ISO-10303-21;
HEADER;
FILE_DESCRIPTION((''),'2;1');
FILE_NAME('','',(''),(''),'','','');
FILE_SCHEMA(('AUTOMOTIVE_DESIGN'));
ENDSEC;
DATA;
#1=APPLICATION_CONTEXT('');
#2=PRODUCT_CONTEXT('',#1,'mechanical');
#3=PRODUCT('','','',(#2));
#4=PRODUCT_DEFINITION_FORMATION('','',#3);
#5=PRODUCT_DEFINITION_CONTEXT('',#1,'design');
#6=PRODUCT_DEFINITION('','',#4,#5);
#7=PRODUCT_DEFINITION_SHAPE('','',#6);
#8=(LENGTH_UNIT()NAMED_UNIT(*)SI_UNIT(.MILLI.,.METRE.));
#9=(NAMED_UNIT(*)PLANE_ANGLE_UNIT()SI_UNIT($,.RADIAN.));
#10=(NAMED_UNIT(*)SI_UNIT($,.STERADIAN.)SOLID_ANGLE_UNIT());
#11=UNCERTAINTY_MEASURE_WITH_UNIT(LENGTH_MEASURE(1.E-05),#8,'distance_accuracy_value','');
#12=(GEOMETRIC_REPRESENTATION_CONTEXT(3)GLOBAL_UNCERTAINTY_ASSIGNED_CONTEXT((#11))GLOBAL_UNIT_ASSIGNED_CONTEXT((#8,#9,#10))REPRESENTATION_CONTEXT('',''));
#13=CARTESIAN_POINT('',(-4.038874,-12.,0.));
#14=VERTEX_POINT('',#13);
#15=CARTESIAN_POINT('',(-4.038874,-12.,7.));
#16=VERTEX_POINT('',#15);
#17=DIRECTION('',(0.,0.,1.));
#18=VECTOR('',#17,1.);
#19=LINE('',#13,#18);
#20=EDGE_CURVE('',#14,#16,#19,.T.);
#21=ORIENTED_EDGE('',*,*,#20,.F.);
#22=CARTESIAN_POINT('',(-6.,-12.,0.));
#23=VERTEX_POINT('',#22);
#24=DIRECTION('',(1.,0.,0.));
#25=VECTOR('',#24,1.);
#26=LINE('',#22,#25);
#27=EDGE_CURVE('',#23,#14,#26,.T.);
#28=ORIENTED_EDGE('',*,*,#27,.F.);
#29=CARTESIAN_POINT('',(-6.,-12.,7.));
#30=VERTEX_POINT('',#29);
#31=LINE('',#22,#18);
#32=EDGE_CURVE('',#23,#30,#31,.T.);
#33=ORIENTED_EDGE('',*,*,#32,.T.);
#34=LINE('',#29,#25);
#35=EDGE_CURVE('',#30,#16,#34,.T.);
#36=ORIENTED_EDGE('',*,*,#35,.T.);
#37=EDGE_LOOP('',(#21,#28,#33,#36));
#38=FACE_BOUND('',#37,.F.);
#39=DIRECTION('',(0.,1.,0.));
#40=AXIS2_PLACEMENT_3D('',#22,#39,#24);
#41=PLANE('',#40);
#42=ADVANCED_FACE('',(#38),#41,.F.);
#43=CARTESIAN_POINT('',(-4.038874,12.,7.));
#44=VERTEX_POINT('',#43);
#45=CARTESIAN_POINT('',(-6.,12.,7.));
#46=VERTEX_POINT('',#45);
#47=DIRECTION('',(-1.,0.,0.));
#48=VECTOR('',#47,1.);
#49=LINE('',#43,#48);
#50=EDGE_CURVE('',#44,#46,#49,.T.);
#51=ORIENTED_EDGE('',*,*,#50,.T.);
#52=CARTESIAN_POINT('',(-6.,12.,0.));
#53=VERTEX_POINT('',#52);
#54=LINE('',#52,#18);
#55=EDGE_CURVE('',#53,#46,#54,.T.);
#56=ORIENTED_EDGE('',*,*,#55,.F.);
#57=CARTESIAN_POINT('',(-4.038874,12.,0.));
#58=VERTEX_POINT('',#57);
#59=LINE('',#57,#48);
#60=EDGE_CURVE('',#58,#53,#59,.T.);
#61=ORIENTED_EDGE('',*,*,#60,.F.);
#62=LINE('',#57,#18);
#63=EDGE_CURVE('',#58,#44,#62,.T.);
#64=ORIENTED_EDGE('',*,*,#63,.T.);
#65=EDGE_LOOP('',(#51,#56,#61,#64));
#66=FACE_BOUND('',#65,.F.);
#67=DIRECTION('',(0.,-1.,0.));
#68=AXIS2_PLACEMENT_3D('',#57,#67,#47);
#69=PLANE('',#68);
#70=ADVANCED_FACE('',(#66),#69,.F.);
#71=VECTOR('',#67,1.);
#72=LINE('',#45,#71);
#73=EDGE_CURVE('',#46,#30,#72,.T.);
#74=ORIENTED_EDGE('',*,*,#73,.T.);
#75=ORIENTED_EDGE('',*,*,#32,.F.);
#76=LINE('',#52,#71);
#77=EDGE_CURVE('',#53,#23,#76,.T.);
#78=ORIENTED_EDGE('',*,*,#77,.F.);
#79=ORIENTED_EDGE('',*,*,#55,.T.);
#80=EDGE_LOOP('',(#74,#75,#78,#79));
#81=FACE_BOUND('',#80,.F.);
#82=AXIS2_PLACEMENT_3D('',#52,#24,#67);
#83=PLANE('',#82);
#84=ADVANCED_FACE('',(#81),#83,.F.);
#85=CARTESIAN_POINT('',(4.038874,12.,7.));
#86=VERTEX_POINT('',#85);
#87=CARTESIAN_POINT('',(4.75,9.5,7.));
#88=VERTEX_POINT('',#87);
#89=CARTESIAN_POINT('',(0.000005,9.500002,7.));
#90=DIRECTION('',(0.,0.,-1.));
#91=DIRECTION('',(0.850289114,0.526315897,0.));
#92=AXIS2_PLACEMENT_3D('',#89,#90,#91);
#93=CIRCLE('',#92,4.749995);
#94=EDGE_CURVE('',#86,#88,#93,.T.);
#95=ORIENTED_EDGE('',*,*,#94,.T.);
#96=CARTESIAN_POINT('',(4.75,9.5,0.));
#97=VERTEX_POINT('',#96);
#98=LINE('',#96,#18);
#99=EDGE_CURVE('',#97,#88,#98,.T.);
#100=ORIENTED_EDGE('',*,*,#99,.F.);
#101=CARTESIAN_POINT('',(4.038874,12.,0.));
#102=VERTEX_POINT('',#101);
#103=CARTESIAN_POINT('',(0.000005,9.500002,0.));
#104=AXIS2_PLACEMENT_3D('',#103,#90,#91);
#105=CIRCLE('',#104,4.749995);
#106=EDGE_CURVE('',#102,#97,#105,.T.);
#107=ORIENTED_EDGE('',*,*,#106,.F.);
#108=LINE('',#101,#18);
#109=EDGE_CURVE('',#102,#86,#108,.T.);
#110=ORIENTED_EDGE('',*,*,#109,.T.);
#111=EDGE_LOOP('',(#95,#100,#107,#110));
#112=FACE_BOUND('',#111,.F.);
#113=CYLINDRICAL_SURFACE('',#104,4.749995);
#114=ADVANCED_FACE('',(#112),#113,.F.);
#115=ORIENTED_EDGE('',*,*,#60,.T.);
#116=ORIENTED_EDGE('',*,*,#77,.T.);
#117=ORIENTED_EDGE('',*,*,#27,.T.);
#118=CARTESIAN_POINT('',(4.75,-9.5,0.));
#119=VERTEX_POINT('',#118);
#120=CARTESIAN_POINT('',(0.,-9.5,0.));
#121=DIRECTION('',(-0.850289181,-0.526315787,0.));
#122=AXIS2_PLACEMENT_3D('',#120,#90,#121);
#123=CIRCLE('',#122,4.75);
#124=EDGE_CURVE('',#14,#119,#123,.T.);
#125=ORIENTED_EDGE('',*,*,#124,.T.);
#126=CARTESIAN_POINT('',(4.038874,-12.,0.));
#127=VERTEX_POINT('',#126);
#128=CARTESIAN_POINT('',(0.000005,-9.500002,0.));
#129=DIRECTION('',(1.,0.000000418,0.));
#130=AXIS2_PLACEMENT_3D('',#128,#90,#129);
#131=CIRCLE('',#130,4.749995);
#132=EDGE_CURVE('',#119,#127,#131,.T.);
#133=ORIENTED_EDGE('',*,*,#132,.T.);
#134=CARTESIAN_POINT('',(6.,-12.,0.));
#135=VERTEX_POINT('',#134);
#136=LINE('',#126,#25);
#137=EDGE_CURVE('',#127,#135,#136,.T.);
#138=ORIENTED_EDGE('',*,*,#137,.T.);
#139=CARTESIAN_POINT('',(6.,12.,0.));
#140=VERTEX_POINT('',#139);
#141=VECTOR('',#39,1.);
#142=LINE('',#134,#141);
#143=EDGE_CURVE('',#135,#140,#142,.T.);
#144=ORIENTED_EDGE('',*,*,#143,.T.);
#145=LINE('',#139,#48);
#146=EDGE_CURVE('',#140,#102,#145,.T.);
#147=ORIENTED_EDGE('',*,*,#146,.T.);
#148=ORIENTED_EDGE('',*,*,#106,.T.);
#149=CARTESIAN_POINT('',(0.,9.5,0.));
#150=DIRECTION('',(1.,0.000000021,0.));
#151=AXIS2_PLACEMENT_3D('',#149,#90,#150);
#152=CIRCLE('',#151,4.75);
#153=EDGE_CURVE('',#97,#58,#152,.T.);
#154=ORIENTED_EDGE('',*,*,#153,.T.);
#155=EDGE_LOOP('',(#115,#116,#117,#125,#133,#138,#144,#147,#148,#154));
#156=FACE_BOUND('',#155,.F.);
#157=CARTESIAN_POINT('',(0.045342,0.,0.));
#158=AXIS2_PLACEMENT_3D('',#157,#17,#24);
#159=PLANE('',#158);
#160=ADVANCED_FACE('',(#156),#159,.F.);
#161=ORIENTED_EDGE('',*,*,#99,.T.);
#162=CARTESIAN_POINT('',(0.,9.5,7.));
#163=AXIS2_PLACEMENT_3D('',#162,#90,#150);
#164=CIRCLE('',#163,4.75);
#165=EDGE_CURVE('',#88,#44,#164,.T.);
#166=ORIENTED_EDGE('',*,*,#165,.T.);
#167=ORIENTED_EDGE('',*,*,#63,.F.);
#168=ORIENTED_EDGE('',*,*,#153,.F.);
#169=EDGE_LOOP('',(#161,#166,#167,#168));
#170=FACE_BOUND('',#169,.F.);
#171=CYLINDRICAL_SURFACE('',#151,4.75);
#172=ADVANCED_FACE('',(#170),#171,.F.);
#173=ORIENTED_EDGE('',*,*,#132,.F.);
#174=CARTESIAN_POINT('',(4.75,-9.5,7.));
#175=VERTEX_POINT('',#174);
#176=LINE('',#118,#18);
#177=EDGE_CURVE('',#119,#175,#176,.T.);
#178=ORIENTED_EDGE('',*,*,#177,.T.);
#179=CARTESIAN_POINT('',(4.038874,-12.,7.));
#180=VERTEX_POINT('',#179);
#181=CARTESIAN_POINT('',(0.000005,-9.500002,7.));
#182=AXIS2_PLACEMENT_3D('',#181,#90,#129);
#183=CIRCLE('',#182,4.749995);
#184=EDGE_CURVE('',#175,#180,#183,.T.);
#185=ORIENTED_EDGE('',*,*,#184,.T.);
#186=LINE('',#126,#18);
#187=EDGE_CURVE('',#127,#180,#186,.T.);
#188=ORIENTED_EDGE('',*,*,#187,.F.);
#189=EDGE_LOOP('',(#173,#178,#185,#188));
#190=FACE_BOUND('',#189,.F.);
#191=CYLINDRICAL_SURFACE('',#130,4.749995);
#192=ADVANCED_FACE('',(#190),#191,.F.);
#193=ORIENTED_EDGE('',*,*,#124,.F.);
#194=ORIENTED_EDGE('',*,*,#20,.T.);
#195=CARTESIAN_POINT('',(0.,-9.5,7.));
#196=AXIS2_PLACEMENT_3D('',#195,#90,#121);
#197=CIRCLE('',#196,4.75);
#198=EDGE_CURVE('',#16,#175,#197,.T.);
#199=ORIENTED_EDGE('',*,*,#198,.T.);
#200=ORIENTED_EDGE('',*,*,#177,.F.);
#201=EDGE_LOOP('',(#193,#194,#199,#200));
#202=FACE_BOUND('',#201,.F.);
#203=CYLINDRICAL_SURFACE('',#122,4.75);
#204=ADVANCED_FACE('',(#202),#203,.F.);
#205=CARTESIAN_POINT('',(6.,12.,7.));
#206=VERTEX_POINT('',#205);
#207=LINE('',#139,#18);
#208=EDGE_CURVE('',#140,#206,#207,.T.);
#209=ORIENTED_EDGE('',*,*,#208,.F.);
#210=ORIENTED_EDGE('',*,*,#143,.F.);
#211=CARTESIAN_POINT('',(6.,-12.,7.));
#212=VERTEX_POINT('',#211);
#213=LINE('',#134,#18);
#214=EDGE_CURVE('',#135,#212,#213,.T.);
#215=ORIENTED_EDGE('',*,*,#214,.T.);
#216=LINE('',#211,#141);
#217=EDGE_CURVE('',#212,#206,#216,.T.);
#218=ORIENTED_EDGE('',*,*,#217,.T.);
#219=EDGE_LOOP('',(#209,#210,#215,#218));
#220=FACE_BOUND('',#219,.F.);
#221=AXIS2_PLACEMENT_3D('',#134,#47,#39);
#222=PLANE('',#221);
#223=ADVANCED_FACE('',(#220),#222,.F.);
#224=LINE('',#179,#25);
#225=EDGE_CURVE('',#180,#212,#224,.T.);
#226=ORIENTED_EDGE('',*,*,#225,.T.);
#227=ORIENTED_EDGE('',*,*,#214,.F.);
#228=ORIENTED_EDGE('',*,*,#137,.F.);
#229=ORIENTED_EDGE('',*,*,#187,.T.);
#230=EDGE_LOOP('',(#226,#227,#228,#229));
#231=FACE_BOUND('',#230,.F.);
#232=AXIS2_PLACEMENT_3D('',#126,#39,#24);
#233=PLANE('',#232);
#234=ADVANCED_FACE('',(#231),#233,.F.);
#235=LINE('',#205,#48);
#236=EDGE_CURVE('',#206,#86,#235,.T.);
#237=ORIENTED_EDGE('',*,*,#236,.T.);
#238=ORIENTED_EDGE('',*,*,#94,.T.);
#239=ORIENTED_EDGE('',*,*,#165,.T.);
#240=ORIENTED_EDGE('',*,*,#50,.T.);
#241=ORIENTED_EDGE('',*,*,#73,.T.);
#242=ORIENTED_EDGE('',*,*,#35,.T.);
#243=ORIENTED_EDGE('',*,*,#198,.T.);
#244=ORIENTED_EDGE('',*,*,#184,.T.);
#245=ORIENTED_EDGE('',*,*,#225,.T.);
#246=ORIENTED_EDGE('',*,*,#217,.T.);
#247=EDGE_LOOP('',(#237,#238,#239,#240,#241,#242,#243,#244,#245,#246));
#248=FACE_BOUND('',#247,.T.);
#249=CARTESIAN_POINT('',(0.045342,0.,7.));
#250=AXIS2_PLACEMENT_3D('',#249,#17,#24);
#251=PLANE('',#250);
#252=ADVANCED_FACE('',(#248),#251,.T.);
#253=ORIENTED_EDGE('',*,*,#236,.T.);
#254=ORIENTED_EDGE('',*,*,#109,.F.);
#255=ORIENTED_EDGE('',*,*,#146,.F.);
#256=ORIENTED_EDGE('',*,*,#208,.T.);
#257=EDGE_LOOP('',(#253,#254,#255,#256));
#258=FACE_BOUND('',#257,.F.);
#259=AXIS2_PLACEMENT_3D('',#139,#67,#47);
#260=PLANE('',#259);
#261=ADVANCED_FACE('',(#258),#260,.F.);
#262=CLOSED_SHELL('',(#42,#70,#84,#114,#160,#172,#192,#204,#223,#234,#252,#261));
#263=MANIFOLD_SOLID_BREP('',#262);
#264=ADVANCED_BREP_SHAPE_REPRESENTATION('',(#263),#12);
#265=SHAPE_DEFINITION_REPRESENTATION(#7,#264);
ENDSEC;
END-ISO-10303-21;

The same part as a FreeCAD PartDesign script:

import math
import FreeCAD as App
import Part
import Sketcher
from FreeCAD import Vector

doc = App.newDocument("Part")
params = doc.addObject("Spreadsheet::Sheet", "Params")
for row, (alias, value) in enumerate([
    ("sketch1_height", "24 mm"),
    ("sketch1_radius", "4.75 mm"),
    ("pad1_length", "7 mm"),
], start=1):
    params.set(f"A{row}", alias)
    params.set(f"B{row}", "=" + value)
    params.setAlias(f"B{row}", alias)

body = doc.addObject("PartDesign::Body", "Body")

sketch1 = body.newObject("Sketcher::SketchObject", "Sketch")
sketch1.AttachmentSupport = (doc.getObject("XY_Plane"), [""])
sketch1.MapMode = "FlatFace"
sketch1.addGeometry(Part.LineSegment(Vector(6, -12, 0), Vector(6, 12, 0)), False)
sketch1.addGeometry(Part.LineSegment(Vector(6, 12, 0), Vector(4, 12, 0)), False)
sketch1.addGeometry(Part.ArcOfCircle(Part.Circle(Vector(0, 9.5, 0), Vector(0, 0, 1), 4.7), math.radians(0), math.radians(32)), False)
sketch1.addGeometry(Part.ArcOfCircle(Part.Circle(Vector(0, 9.5, 0), Vector(0, 0, 1), 4.8), math.radians(148), math.radians(360)), False)
sketch1.addGeometry(Part.LineSegment(Vector(-4, 12, 0), Vector(-6, 12, 0)), False)
sketch1.addGeometry(Part.LineSegment(Vector(-6, 12, 0), Vector(-6, -12, 0)), False)
sketch1.addGeometry(Part.LineSegment(Vector(-6, -12, 0), Vector(-4, -12, 0)), False)
sketch1.addGeometry(Part.ArcOfCircle(Part.Circle(Vector(0, -9.5, 0), Vector(0, 0, 1), 4.8), math.radians(0), math.radians(212)), False)
sketch1.addGeometry(Part.ArcOfCircle(Part.Circle(Vector(0, -9.5, 0), Vector(0, 0, 1), 4.7), math.radians(-32), math.radians(0)), False)
sketch1.addGeometry(Part.LineSegment(Vector(4, -12, 0), Vector(6, -12, 0)), False)
sketch1.addConstraint(Sketcher.Constraint("Coincident", 0, 2, 1, 1))
sketch1.addConstraint(Sketcher.Constraint("Coincident", 1, 2, 2, 2))
sketch1.addConstraint(Sketcher.Constraint("Tangent", 2, 1, 3, 2))
sketch1.addConstraint(Sketcher.Constraint("Coincident", 3, 1, 4, 1))
sketch1.addConstraint(Sketcher.Constraint("Coincident", 4, 2, 5, 1))
sketch1.addConstraint(Sketcher.Constraint("Coincident", 5, 2, 6, 1))
sketch1.addConstraint(Sketcher.Constraint("Coincident", 6, 2, 7, 2))
sketch1.addConstraint(Sketcher.Constraint("Tangent", 7, 1, 8, 2))
sketch1.addConstraint(Sketcher.Constraint("Coincident", 8, 1, 9, 1))
sketch1.addConstraint(Sketcher.Constraint("Coincident", 9, 2, 0, 1))
sketch1.addConstraint(Sketcher.Constraint("Vertical", 0))
sketch1.addConstraint(Sketcher.Constraint("Horizontal", 1))
sketch1.addConstraint(Sketcher.Constraint("Horizontal", 4))
sketch1.addConstraint(Sketcher.Constraint("Vertical", 5))
sketch1.addConstraint(Sketcher.Constraint("Horizontal", 6))
sketch1.addConstraint(Sketcher.Constraint("Horizontal", 9))
sketch1.addConstraint(Sketcher.Constraint("Equal", 3, 7))
sketch1.addConstraint(Sketcher.Constraint("Equal", 2, 8))
sketch1.addConstraint(Sketcher.Constraint("Symmetric", 2, 3, 7, 3, -1, 1))
sketch1.addConstraint(Sketcher.Constraint("Symmetric", 0, 2, 5, 2, -1, 1))
sketch1.addConstraint(Sketcher.Constraint("Symmetric", 3, 1, 8, 1, -1, 1))
sketch1.addConstraint(Sketcher.Constraint("Symmetric", 1, 2, 3, 1, -2))
sketch1.addConstraint(Sketcher.Constraint("Horizontal", 3, 3, 2, 1))
sketch1.addConstraint(Sketcher.Constraint("Horizontal", 8, 3, 7, 1))
sketch1.addConstraint(Sketcher.Constraint("DistanceY", 0, 1, 0, 2, 24.0))
sketch1.addConstraint(Sketcher.Constraint("Radius", 3, 4.75))
sketch1.addConstraint(Sketcher.Constraint("DistanceX", -1, 1, 0, 2, 6.0))
sketch1.addConstraint(Sketcher.Constraint("DistanceY", 7, 3, 3, 3, 19.0))
sketch1.setExpression("Constraints[24]", "Params.sketch1_height")
sketch1.setExpression("Constraints[25]", "Params.sketch1_radius")
pad1 = body.newObject("PartDesign::Pad", "Pad")
pad1.Profile = sketch1
pad1.setExpression("Length", "Params.pad1_length")

doc.recompute()
